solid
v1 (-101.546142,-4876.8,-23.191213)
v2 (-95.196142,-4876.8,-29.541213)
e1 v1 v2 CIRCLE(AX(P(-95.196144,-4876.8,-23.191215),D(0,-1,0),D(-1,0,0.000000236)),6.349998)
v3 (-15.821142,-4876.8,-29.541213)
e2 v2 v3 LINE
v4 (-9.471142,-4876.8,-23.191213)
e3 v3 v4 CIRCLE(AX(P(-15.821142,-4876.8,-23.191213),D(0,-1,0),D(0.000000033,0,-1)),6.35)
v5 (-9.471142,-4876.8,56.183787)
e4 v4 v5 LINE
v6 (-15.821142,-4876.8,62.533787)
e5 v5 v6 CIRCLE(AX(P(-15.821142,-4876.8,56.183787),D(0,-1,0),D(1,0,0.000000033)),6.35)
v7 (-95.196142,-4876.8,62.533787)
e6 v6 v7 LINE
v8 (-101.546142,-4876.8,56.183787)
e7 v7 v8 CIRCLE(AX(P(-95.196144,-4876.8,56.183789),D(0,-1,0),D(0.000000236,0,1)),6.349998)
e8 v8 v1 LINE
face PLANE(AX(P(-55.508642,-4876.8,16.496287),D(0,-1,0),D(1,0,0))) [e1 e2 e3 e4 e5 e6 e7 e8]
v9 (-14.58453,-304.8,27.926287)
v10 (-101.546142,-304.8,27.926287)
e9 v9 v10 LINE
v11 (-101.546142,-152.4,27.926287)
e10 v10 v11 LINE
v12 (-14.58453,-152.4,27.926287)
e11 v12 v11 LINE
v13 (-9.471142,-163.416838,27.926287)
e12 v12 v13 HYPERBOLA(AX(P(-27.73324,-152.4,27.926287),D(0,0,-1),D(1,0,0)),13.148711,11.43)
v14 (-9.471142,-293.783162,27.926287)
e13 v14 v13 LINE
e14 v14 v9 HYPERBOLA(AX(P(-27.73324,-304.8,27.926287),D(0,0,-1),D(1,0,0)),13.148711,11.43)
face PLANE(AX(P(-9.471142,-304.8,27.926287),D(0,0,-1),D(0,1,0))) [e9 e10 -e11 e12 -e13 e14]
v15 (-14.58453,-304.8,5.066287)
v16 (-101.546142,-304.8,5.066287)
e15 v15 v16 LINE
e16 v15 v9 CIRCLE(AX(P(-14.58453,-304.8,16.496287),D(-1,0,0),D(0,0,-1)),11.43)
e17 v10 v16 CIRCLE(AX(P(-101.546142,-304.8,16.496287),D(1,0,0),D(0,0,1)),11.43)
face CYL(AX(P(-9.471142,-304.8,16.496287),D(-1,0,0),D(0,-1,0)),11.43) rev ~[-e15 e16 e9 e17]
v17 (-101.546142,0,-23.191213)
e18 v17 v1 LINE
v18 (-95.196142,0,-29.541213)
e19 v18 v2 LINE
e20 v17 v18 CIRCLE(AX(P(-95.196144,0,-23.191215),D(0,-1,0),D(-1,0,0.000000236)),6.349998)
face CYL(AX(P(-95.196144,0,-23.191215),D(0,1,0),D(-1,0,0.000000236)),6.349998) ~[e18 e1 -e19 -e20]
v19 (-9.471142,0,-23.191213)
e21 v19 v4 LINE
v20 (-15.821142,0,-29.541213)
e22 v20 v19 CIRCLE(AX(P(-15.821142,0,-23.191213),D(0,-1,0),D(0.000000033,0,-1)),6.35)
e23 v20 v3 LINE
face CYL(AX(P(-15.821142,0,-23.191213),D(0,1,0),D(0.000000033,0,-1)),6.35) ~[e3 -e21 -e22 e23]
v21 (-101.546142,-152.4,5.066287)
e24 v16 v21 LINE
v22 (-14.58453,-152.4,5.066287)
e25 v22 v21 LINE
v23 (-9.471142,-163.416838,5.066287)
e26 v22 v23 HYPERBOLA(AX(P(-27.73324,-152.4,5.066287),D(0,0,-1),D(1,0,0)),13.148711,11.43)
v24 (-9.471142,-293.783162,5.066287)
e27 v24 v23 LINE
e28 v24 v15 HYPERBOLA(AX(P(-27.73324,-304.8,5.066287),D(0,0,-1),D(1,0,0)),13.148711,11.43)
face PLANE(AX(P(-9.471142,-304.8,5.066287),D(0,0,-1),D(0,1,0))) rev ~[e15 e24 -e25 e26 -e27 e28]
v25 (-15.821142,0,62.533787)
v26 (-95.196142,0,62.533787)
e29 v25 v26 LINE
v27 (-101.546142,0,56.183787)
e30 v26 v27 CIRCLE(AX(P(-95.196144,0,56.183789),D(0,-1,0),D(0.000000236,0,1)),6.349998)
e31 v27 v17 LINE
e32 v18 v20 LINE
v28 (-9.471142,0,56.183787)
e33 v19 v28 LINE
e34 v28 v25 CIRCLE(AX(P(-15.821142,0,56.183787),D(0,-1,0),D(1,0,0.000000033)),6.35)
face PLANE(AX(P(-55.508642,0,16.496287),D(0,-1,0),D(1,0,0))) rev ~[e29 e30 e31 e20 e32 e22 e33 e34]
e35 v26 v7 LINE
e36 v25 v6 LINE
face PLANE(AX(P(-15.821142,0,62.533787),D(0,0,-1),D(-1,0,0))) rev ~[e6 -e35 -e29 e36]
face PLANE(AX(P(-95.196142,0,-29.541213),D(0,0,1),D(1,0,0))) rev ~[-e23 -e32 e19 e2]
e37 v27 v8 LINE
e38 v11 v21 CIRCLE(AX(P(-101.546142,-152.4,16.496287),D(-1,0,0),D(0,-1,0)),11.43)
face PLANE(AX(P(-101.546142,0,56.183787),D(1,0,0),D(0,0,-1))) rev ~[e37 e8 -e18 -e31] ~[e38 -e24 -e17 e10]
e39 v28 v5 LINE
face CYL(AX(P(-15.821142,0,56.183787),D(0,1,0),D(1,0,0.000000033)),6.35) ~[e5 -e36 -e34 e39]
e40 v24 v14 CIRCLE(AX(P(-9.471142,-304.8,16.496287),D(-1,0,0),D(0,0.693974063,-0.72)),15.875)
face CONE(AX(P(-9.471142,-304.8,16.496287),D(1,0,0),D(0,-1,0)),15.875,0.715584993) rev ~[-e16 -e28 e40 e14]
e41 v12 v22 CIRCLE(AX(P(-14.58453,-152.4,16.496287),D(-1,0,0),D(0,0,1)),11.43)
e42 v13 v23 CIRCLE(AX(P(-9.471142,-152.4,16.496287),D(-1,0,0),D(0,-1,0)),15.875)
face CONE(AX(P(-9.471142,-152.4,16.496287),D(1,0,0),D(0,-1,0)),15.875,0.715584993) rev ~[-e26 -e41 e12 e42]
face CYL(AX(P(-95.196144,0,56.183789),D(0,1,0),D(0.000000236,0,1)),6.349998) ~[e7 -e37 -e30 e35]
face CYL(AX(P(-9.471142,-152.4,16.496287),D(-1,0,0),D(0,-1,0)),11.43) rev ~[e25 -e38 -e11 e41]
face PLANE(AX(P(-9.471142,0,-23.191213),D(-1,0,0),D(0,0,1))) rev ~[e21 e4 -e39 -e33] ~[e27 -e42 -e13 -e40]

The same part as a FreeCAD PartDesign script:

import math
import FreeCAD as App
import Part
import Sketcher

V = App.Vector
Q = App.Units.Quantity

doc = App.newDocument("Part")
body = doc.addObject("PartDesign::Body", "Body")

# Sketch on XZ plane
sketch1 = doc.addObject("Sketcher::SketchObject", "Sketch")
body.addObject(sketch1)
sketch1.AttachmentSupport = (doc.XZ_Plane, [""])
sketch1.MapMode = "FlatFace"
sketch1.addGeometry([
    Part.LineSegment(V(-16, 63, 0), V(-95, 63, 0)),  # 0
    Part.ArcOfCircle(Part.Circle(V(-95, 56, 0), V(0, 0, 1), 6), math.radians(90), math.radians(180)),  # 1
    Part.LineSegment(V(-102, 56, 0), V(-102, -23, 0)),  # 2
    Part.ArcOfCircle(Part.Circle(V(-95, -23, 0), V(0, 0, 1), 6), math.radians(180), math.radians(270)),  # 3
    Part.LineSegment(V(-95, -30, 0), V(-16, -30, 0)),  # 4
    Part.ArcOfCircle(Part.Circle(V(-16, -23, 0), V(0, 0, 1), 6), math.radians(-90), math.radians(0)),  # 5
    Part.LineSegment(V(-9, -23, 0), V(-9, 56, 0)),  # 6
    Part.ArcOfCircle(Part.Circle(V(-16, 56, 0), V(0, 0, 1), 6), math.radians(0), math.radians(90)),  # 7
], False)
sketch1.addConstraint([
    Sketcher.Constraint("Tangent", 0, 2, 1, 1),
    Sketcher.Constraint("Tangent", 1, 2, 2, 1),
    Sketcher.Constraint("Tangent", 2, 2, 3, 1),
    Sketcher.Constraint("Tangent", 3, 2, 4, 1),
    Sketcher.Constraint("Tangent", 4, 2, 5, 1),
    Sketcher.Constraint("Tangent", 5, 2, 6, 1),
    Sketcher.Constraint("Tangent", 6, 2, 7, 1),
    Sketcher.Constraint("Tangent", 7, 2, 0, 1),
    Sketcher.Constraint("Horizontal", 0),
    Sketcher.Constraint("Vertical", 2),
    Sketcher.Constraint("Horizontal", 4),
    Sketcher.Constraint("Vertical", 6),
    Sketcher.Constraint("Equal", 1, 3),
    Sketcher.Constraint("Equal", 3, 5),
    Sketcher.Constraint("Equal", 5, 7),
    Sketcher.Constraint("Equal", 4, 2),
    Sketcher.Constraint("Radius", 1, Q("0.2499999 in")),
    Sketcher.Constraint("DistanceX", 0, 2, 0, 1, Q("3.125 in")),
    Sketcher.Constraint("DistanceY", -1, 1, 1, 3, Q("56.183788 mm")),
    Sketcher.Constraint("DistanceX", 0, 2, -1, 1, Q("95.196142 mm")),
])
pad1 = doc.addObject("PartDesign::Pad", "Pad")
body.addObject(pad1)
pad1.Profile = sketch1
pad1.Length = Q("192 in")

# Sketch on YZ plane
sketch2 = doc.addObject("Sketcher::SketchObject", "Sketch001")
body.addObject(sketch2)
sketch2.AttachmentSupport = (doc.YZ_Plane, [""])
sketch2.MapMode = "FlatFace"
sketch2.AttachmentOffset = App.Placement(V(0, 0, -9.471142), App.Rotation())
sketch2.addGeometry(Part.Circle(V(-305, 16, 0), V(0, 0, 1), 11), False)
sketch2.addConstraint([
    Sketcher.Constraint("Diameter", 0, Q("0.9 in")),
    Sketcher.Constraint("DistanceX", 0, 3, -1, 1, Q("12 in")),
    Sketcher.Constraint("DistanceY", -1, 1, 0, 3, Q("16.496287 mm")),
])
doc.recompute()
hole = doc.addObject("PartDesign::Hole", "Hole")
body.addObject(hole)
hole.Profile = sketch2
hole.ThreadType = "None"
hole.Diameter = Q("0.9 in")
hole.DepthType = "ThroughAll"
hole.HoleCutType = "Countersink"
hole.HoleCutDiameter = Q("1.25 in")
hole.HoleCutCountersinkAngle = 82

# Sketch on YZ plane
sketch3 = doc.addObject("Sketcher::SketchObject", "Sketch002")
body.addObject(sketch3)
sketch3.AttachmentSupport = (doc.YZ_Plane, [""])
sketch3.MapMode = "FlatFace"
sketch3.AttachmentOffset = App.Placement(V(0, 0, -9.471142), App.Rotation())
sketch3.addGeometry(Part.Circle(V(-152, 16, 0), V(0, 0, 1), 11), False)
sketch3.addConstraint([
    Sketcher.Constraint("Diameter", 0, Q("0.9 in")),
    Sketcher.Constraint("DistanceX", 0, 3, -1, 1, Q("6 in")),
    Sketcher.Constraint("DistanceY", -1, 1, 0, 3, Q("16.496287 mm")),
])
doc.recompute()
hole2 = doc.addObject("PartDesign::Hole", "Hole001")
body.addObject(hole2)
hole2.Profile = sketch3
hole2.ThreadType = "None"
hole2.Diameter = Q("0.9 in")
hole2.DepthType = "ThroughAll"
hole2.HoleCutType = "Countersink"
hole2.HoleCutDiameter = Q("1.25 in")
hole2.HoleCutCountersinkAngle = 82

# Sketch on YZ plane
sketch4 = doc.addObject("Sketcher::SketchObject", "Sketch003")
body.addObject(sketch4)
sketch4.AttachmentSupport = (doc.YZ_Plane, [""])
sketch4.MapMode = "FlatFace"
sketch4.AttachmentOffset = App.Placement(V(0, 0, -9.471142), App.Rotation())
sketch4.addGeometry([
    Part.LineSegment(V(-305, 28, 0), V(-305, 5, 0)),
    Part.LineSegment(V(-305, 5, 0), V(-152, 5, 0)),
    Part.LineSegment(V(-152, 5, 0), V(-152, 28, 0)),
    Part.LineSegment(V(-152, 28, 0), V(-305, 28, 0)),
], False)
sketch4.addConstraint([
    Sketcher.Constraint("Coincident", 0, 2, 1, 1),
    Sketcher.Constraint("Coincident", 1, 2, 2, 1),
    Sketcher.Constraint("Coincident", 2, 2, 3, 1),
    Sketcher.Constraint("Coincident", 3, 2, 0, 1),
    Sketcher.Constraint("Vertical", 0),
    Sketcher.Constraint("Horizontal", 1),
    Sketcher.Constraint("Vertical", 2),
    Sketcher.Constraint("Horizontal", 3),
    Sketcher.Constraint("DistanceX", 1, 1, 1, 2, Q("6 in")),
    Sketcher.Constraint("DistanceY", 0, 2, 0, 1, Q("0.9 in")),
    Sketcher.Constraint("DistanceX", 0, 2, -1, 1, Q("12 in")),
    Sketcher.Constraint("DistanceY", -1, 1, 0, 2, Q("5.066287 mm")),
])
pocket1 = doc.addObject("PartDesign::Pocket", "Pocket")
body.addObject(pocket1)
pocket1.Profile = sketch4
pocket1.Length = Q("4 in")

doc.recompute()
